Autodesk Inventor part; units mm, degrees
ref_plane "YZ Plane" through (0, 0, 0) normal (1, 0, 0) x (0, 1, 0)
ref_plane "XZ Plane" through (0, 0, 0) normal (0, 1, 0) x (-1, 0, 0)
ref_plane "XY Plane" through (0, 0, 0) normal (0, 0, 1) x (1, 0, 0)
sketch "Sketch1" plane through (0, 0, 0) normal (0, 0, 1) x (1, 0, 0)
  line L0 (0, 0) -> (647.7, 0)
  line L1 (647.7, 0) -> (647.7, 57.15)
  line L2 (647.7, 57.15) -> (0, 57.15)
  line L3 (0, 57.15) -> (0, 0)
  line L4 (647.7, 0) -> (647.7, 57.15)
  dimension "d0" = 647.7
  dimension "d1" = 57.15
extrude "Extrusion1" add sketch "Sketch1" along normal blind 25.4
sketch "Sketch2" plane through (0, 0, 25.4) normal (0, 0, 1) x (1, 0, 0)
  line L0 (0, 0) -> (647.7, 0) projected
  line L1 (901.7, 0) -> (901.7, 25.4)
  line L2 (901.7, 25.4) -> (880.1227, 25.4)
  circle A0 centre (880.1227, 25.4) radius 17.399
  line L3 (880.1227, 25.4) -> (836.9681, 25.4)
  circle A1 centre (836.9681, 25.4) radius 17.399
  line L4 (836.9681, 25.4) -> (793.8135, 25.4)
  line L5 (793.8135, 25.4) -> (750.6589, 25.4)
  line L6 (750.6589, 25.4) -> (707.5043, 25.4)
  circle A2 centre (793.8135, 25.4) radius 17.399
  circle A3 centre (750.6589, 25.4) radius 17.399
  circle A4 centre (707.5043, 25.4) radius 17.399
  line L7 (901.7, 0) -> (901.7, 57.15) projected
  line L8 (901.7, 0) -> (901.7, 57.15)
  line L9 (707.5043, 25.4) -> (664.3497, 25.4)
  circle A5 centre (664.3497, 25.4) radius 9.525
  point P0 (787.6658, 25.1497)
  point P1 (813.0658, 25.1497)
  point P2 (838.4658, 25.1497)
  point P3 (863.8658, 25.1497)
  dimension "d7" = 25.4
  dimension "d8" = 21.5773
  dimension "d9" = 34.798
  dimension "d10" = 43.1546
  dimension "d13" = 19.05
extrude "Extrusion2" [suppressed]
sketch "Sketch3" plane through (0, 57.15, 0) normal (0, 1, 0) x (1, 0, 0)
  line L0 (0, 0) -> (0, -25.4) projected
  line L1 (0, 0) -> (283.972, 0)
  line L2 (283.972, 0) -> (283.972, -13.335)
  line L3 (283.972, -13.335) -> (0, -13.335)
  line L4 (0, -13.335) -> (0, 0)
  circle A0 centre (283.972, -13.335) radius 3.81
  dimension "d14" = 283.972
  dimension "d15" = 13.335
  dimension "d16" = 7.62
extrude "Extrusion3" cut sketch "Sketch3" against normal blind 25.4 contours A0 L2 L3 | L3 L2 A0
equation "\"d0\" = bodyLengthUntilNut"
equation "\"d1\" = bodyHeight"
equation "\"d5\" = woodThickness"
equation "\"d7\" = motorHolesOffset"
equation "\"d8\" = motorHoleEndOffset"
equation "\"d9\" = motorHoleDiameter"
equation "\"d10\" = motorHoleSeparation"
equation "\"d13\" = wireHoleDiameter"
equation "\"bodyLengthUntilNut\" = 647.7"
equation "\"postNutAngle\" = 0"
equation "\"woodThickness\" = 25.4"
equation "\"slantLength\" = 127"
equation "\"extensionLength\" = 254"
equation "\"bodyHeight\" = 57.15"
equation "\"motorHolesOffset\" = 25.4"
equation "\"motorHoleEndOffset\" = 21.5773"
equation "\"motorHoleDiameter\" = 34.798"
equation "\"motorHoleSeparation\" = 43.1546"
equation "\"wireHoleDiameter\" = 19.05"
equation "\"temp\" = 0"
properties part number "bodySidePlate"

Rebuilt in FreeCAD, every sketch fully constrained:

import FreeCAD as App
import Part
import Sketcher
from FreeCAD import Vector
Q = App.Units.Quantity

doc = App.newDocument("Part")
body = doc.addObject("PartDesign::Body", "Body")

# Sketch on XY plane
sketch1 = body.newObject("Sketcher::SketchObject", "Sketch")
sketch1.AttachmentSupport = (doc.getObject("XY_Plane"), [""])
sketch1.MapMode = "FlatFace"
sketch1.addGeometry([
    Part.LineSegment(Vector(0, 57.15, 0), Vector(0, 0, 0)),
    Part.LineSegment(Vector(0, 0, 0), Vector(647.7, 0, 0)),
    Part.LineSegment(Vector(647.7, 0, 0), Vector(647.7, 57.15, 0)),
    Part.LineSegment(Vector(647.7, 57.15, 0), Vector(0, 57.15, 0)),
], False)
sketch1.addConstraint([
    Sketcher.Constraint("Coincident", 0, 2, 1, 1),
    Sketcher.Constraint("Coincident", 1, 2, 2, 1),
    Sketcher.Constraint("Coincident", 2, 2, 3, 1),
    Sketcher.Constraint("Coincident", 3, 2, 0, 1),
    Sketcher.Constraint("Vertical", 0),
    Sketcher.Constraint("Horizontal", 1),
    Sketcher.Constraint("Vertical", 2),
    Sketcher.Constraint("Horizontal", 3),
    Sketcher.Constraint("Coincident", 0, 2, -1, 1),
    Sketcher.Constraint("DistanceX", 1, 1, 1, 2, Q("25.5 in")),
    Sketcher.Constraint("DistanceY", 0, 2, 0, 1, Q("2.25 in")),
])
pad1 = body.newObject("PartDesign::Pad", "Pad")
pad1.Profile = sketch1
pad1.Length = Q("1 in")

# Sketch on XZ plane
sketch2 = body.newObject("Sketcher::SketchObject", "Sketch001")
sketch2.AttachmentSupport = (doc.getObject("XZ_Plane"), [""])
sketch2.MapMode = "FlatFace"
sketch2.AttachmentOffset = App.Placement(Vector(0, 0, -2.25 * 25.4), App.Rotation())
sketch2.addGeometry(Part.Circle(Vector(283.972, 13.335, 0), Vector(0, 0, 1), 3.81), False)
sketch2.addConstraint([
    Sketcher.Constraint("Diameter", 0, Q("0.3 in")),
    Sketcher.Constraint("DistanceX", -1, 1, 0, 3, Q("11.18 in")),
    Sketcher.Constraint("DistanceY", -1, 1, 0, 3, Q("0.525 in")),
])
pocket1 = body.newObject("PartDesign::Pocket", "Pocket")
pocket1.Profile = sketch2
pocket1.Length = Q("1 in")
pocket1.Reversed = True

doc.recompute()
